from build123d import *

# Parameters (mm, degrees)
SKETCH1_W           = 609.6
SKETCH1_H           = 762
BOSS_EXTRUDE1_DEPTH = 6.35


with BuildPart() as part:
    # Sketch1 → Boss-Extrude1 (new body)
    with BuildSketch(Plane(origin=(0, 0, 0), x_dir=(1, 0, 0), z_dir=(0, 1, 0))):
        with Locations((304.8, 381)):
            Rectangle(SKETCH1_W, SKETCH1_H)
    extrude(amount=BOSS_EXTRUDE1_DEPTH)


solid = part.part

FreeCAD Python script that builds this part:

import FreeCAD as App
import Part
import Sketcher
from FreeCAD import Vector
Q = App.Units.Quantity

doc = App.newDocument("Part")
params = doc.addObject("Spreadsheet::Sheet", "Params")
for row, (alias, value) in enumerate([
    ("sketch1_width", "24 in"),
    ("sketch1_height", "30 in"),
    ("pad1_length", "0.25 in"),
], start=1):
    params.set(f"A{row}", alias)
    params.set(f"B{row}", "=" + value)
    params.setAlias(f"B{row}", alias)

body = doc.addObject("PartDesign::Body", "Body")

# Sketch on XZ plane
sketch1 = body.newObject("Sketcher::SketchObject", "Sketch")
sketch1.AttachmentSupport = (doc.getObject("XZ_Plane"), [""])
sketch1.MapMode = "FlatFace"
sketch1.addGeometry(Part.LineSegment(Vector(0, -762, 0), Vector(0, 0, 0)), False)
sketch1.addGeometry(Part.LineSegment(Vector(0, 0, 0), Vector(610, 0, 0)), False)
sketch1.addGeometry(Part.LineSegment(Vector(610, 0, 0), Vector(610, -762, 0)), False)
sketch1.addGeometry(Part.LineSegment(Vector(610, -762, 0), Vector(0, -762, 0)), False)
sketch1.addConstraint(Sketcher.Constraint("Coincident", 0, 2, 1, 1))
sketch1.addConstraint(Sketcher.Constraint("Coincident", 1, 2, 2, 1))
sketch1.addConstraint(Sketcher.Constraint("Coincident", 2, 2, 3, 1))
sketch1.addConstraint(Sketcher.Constraint("Coincident", 3, 2, 0, 1))
sketch1.addConstraint(Sketcher.Constraint("Vertical", 0))
sketch1.addConstraint(Sketcher.Constraint("Horizontal", 1))
sketch1.addConstraint(Sketcher.Constraint("Vertical", 2))
sketch1.addConstraint(Sketcher.Constraint("Horizontal", 3))
sketch1.addConstraint(Sketcher.Constraint("Coincident", 0, 2, -1, 1))
sketch1.addConstraint(Sketcher.Constraint("DistanceX", 1, 1, 1, 2, Q("24 in")))
sketch1.addConstraint(Sketcher.Constraint("DistanceY", 0, 1, 0, 2, Q("30 in")))
sketch1.setExpression("Constraints[9]", "Params.sketch1_width")
sketch1.setExpression("Constraints[10]", "Params.sketch1_height")
pad1 = body.newObject("PartDesign::Pad", "Pad")
pad1.Profile = sketch1
pad1.setExpression("Length", "Params.pad1_length")
pad1.Reversed = True

doc.recompute()
